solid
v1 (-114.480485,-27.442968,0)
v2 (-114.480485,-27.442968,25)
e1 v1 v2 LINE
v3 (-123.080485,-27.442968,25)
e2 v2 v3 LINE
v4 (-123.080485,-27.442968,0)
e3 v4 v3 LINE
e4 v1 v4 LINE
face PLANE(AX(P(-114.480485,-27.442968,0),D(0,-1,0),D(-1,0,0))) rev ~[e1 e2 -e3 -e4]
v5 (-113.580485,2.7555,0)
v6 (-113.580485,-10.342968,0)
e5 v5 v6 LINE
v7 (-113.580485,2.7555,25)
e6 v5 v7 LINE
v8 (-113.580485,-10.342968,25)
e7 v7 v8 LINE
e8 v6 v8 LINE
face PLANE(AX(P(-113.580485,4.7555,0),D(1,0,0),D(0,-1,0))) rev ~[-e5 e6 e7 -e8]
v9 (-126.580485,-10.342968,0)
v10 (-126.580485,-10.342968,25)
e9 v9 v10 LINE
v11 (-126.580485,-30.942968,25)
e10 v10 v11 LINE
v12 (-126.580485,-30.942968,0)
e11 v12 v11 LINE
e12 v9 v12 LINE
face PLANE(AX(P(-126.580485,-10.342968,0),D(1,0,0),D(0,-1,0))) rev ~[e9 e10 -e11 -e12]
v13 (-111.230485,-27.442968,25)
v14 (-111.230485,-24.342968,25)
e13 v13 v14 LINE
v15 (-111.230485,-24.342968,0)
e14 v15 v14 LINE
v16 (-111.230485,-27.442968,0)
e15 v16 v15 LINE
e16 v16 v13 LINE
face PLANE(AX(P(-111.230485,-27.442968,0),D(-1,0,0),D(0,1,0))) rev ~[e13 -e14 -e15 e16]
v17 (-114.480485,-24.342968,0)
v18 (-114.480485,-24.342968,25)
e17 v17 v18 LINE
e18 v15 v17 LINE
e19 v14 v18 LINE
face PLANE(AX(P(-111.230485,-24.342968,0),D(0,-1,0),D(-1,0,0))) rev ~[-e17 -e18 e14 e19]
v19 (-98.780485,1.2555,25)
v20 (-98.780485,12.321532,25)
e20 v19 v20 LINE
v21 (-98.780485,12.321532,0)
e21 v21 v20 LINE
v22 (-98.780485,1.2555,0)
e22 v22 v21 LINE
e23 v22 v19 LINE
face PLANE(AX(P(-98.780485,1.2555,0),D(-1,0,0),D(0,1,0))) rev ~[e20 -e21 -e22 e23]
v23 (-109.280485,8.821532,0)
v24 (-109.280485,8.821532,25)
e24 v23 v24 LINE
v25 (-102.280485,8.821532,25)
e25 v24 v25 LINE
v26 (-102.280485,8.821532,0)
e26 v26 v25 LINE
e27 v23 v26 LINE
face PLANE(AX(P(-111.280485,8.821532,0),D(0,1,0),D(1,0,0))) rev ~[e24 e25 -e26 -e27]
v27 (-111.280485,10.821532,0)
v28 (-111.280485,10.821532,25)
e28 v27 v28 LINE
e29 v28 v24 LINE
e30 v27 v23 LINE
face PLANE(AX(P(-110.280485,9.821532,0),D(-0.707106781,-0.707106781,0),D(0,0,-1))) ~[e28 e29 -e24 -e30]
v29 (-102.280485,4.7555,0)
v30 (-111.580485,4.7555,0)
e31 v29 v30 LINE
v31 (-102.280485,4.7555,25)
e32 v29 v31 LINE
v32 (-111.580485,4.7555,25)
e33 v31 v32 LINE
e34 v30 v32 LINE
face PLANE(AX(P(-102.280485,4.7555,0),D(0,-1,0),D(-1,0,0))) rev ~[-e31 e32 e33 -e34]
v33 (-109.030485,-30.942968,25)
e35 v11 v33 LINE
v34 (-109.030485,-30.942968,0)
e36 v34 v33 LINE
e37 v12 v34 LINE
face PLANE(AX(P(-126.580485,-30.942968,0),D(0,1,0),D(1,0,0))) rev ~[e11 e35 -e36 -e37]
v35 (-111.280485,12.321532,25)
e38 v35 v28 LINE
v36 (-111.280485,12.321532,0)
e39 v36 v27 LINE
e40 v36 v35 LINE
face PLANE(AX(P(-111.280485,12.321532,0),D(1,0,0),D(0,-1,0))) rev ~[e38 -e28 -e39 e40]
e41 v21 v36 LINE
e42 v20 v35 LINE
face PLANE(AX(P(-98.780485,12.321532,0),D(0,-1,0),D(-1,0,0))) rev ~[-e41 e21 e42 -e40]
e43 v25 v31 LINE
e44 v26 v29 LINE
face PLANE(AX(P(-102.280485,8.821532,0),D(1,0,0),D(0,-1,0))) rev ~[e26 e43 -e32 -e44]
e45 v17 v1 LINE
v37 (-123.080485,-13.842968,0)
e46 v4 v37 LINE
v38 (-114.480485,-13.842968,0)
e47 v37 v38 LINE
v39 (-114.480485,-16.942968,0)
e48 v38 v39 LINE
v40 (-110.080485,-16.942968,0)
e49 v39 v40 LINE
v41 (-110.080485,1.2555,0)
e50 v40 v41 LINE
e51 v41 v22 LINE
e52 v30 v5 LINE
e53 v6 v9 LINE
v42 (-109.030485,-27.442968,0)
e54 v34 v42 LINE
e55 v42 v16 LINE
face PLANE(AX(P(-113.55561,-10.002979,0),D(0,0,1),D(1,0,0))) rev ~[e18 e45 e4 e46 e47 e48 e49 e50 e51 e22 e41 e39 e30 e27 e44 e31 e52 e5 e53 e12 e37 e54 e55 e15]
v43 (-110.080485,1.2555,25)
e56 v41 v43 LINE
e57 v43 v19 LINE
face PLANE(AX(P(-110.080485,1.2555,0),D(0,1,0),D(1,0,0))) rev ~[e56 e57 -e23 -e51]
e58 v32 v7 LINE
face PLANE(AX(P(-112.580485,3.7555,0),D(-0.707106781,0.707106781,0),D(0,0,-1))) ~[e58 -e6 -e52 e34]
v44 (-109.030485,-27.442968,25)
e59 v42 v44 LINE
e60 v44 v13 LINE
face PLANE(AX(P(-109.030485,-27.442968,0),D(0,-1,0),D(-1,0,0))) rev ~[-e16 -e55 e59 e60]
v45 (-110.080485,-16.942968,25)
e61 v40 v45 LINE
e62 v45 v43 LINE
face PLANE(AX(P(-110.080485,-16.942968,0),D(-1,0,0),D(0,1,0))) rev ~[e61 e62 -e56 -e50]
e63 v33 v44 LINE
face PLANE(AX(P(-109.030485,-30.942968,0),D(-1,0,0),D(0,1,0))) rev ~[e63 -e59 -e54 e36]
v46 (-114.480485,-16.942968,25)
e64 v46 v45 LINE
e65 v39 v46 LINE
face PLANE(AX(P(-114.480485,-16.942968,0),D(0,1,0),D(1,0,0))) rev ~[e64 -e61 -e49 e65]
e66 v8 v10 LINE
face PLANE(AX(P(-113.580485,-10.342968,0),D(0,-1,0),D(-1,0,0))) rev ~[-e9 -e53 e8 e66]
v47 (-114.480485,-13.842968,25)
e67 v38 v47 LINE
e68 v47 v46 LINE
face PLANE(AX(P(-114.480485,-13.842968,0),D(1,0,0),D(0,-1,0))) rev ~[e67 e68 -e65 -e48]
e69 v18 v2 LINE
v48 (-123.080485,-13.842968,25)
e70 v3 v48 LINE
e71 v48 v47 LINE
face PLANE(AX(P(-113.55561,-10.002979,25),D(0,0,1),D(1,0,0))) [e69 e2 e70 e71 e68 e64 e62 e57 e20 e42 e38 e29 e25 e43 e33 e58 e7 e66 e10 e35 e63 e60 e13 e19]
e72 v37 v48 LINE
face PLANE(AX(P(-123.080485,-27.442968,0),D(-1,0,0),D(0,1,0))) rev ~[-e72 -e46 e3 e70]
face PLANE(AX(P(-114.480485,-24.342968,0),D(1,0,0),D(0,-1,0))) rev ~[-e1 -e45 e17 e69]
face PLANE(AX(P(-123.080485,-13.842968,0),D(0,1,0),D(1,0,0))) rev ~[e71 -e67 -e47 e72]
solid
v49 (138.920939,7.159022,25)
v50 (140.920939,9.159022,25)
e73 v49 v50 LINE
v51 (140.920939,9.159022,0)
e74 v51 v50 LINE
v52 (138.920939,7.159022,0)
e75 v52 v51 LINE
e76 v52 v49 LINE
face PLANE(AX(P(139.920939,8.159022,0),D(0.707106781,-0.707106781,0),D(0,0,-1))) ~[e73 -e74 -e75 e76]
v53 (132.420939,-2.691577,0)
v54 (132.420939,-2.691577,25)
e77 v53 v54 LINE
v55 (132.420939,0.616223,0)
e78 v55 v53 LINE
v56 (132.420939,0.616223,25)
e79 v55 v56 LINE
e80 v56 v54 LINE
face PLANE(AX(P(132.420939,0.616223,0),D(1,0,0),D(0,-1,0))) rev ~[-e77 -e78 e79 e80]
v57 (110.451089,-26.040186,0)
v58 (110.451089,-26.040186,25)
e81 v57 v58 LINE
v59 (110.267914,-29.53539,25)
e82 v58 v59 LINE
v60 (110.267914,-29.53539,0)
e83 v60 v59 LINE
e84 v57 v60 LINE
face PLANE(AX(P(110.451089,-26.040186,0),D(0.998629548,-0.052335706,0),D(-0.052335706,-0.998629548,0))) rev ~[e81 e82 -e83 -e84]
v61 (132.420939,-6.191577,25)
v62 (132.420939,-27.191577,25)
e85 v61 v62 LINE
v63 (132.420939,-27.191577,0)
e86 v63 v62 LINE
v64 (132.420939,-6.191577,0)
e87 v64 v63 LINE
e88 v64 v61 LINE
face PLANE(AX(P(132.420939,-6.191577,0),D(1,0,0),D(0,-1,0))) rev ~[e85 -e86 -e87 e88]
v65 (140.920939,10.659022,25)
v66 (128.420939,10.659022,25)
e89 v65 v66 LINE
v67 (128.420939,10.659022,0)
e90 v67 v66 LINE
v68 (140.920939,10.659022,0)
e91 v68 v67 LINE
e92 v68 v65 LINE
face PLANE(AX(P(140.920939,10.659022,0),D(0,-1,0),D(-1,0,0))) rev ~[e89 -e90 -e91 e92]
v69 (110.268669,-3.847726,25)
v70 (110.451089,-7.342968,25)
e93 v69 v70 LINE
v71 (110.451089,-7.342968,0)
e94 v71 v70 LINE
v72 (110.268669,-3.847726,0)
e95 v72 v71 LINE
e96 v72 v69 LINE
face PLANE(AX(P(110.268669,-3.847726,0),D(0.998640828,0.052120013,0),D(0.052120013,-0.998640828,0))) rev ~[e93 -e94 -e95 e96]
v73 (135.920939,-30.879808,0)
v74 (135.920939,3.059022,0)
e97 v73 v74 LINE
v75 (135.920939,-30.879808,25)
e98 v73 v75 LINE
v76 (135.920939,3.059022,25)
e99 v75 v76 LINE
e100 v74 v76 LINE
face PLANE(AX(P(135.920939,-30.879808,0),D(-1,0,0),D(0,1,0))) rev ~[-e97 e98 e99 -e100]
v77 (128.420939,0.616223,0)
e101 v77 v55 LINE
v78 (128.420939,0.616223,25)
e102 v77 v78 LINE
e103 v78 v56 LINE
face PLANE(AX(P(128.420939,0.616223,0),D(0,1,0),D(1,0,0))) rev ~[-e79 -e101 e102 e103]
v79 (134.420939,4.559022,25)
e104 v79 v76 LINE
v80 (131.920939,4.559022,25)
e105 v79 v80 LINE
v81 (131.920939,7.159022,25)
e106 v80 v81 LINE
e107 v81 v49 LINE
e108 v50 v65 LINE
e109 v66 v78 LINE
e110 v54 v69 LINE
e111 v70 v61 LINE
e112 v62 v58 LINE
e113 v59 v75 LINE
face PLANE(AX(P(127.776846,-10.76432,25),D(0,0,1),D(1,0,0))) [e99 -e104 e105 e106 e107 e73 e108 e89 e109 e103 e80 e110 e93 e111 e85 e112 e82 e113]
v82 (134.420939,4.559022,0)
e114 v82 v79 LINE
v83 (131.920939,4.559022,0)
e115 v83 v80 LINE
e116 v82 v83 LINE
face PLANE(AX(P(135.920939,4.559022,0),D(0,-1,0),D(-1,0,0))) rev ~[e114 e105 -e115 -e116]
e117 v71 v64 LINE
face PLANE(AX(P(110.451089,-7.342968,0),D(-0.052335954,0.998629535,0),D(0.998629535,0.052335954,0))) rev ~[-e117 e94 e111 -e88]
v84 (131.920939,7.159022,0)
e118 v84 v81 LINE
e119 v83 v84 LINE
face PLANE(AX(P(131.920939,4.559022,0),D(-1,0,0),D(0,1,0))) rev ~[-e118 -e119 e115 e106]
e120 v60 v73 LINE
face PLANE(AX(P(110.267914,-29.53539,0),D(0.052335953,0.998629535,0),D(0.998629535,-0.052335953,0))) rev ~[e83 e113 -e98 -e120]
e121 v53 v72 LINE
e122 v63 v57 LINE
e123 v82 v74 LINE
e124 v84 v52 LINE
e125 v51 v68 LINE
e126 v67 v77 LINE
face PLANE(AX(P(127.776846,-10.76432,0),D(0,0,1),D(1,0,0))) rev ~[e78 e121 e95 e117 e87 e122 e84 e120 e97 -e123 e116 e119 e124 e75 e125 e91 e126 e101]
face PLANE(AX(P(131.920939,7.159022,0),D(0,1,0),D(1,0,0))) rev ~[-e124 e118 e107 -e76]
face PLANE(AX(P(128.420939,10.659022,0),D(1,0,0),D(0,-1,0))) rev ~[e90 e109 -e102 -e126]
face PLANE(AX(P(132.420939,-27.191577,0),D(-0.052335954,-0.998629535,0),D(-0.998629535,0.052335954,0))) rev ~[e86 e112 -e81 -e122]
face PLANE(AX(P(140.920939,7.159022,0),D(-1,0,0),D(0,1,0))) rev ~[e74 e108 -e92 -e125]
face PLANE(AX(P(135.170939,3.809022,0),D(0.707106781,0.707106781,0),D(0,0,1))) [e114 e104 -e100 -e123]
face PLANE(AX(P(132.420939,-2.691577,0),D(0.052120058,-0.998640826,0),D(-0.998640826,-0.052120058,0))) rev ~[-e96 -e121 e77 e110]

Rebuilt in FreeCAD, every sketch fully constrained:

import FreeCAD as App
import Part
import Sketcher
from FreeCAD import Vector
Q = App.Units.Quantity


def edges_at(feature, points):
    """Names of the edges that pass closest to the given points."""
    edges = feature.Shape.Edges
    near = lambda p: min(range(len(edges)), key=lambda i: edges[i].distToShape(Part.Vertex(*p))[0])
    return sorted({f"Edge{near(p) + 1}" for p in points})


def add_polygon(sketch, points):
    """Adds a closed chain of lines whose ends are joined by coincident constraints."""
    first, n = sketch.GeometryCount, len(points)
    for a, b in zip(points, points[1:] + points[:1]):
        sketch.addGeometry(Part.LineSegment(App.Vector(*a, 0), App.Vector(*b, 0)), False)
    for i in range(n):
        sketch.addConstraint(Sketcher.Constraint("Coincident", first + i, 2, first + (i + 1) % n, 1))

doc = App.newDocument("Part")
body = doc.addObject("PartDesign::Body", "Body")
body.AllowCompound = True

# Sketch on XY plane
sketch1 = doc.addObject("Sketcher::SketchObject", "Sketch")
body.addObject(sketch1)
sketch1.AttachmentSupport = (doc.XY_Plane, [""])
sketch1.MapMode = "FlatFace"
add_polygon(sketch1, [(131.920939, 4.559022), (131.920939, 7.159022), (140.920939, 7.159022), (140.920939, 10.659022), (128.420939, 10.659022), (128.420939, 0.616223), (132.420939, 0.616223), (132.420939, -2.691577), (110.268669, -3.847726), (110.451089, -7.342968), (132.420939, -6.191577), (132.420939, -27.191577), (110.451089, -26.040186), (110.267914, -29.53539), (135.920939, -30.879808), (135.920939, 4.559022)])  # lines 0-15
add_polygon(sketch1, [(-114.480485, -16.942968), (-110.080485, -16.942968), (-110.080485, 1.2555), (-98.780485, 1.2555), (-98.780485, 12.321532), (-111.280485, 12.321532), (-111.280485, 8.821532), (-102.280485, 8.821532), (-102.280485, 4.7555), (-113.580485, 4.7555), (-113.580485, -10.342968), (-126.580485, -10.342968), (-126.580485, -30.942968), (-109.030485, -30.942968), (-109.030485, -27.442968), (-111.230485, -27.442968), (-111.230485, -24.342968), (-114.480485, -24.342968), (-114.480485, -27.442968), (-123.080485, -27.442968), (-123.080485, -13.842968), (-114.480485, -13.842968)])  # lines 16-37
sketch1.addConstraint(Sketcher.Constraint("Vertical", 0))
sketch1.addConstraint(Sketcher.Constraint("Horizontal", 1))
sketch1.addConstraint(Sketcher.Constraint("Vertical", 2))
sketch1.addConstraint(Sketcher.Constraint("Horizontal", 3))
sketch1.addConstraint(Sketcher.Constraint("Vertical", 4))
sketch1.addConstraint(Sketcher.Constraint("Horizontal", 5))
sketch1.addConstraint(Sketcher.Constraint("Vertical", 6))
sketch1.addConstraint(Sketcher.Constraint("Vertical", 10))
sketch1.addConstraint(Sketcher.Constraint("Vertical", 14))
sketch1.addConstraint(Sketcher.Constraint("Horizontal", 15))
sketch1.addConstraint(Sketcher.Constraint("Horizontal", 16))
sketch1.addConstraint(Sketcher.Constraint("Vertical", 17))
sketch1.addConstraint(Sketcher.Constraint("Horizontal", 18))
sketch1.addConstraint(Sketcher.Constraint("Vertical", 19))
sketch1.addConstraint(Sketcher.Constraint("Horizontal", 20))
sketch1.addConstraint(Sketcher.Constraint("Vertical", 21))
sketch1.addConstraint(Sketcher.Constraint("Horizontal", 22))
sketch1.addConstraint(Sketcher.Constraint("Vertical", 23))
sketch1.addConstraint(Sketcher.Constraint("Horizontal", 24))
sketch1.addConstraint(Sketcher.Constraint("Vertical", 25))
sketch1.addConstraint(Sketcher.Constraint("Horizontal", 26))
sketch1.addConstraint(Sketcher.Constraint("Vertical", 27))
sketch1.addConstraint(Sketcher.Constraint("Horizontal", 28))
sketch1.addConstraint(Sketcher.Constraint("Vertical", 29))
sketch1.addConstraint(Sketcher.Constraint("Horizontal", 30))
sketch1.addConstraint(Sketcher.Constraint("Vertical", 31))
sketch1.addConstraint(Sketcher.Constraint("Horizontal", 32))
sketch1.addConstraint(Sketcher.Constraint("Vertical", 33))
sketch1.addConstraint(Sketcher.Constraint("Horizontal", 34))
sketch1.addConstraint(Sketcher.Constraint("Vertical", 35))
sketch1.addConstraint(Sketcher.Constraint("Horizontal", 36))
sketch1.addConstraint(Sketcher.Constraint("Vertical", 37))
sketch1.addConstraint(Sketcher.Constraint("Perpendicular", 7, 8))
sketch1.addConstraint(Sketcher.Constraint("Perpendicular", 11, 12))
sketch1.addConstraint(Sketcher.Constraint("Perpendicular", 12, 13))
sketch1.addConstraint(Sketcher.Constraint("Horizontal", 30, 2, 33, 2))
sketch1.addConstraint(Sketcher.Constraint("Vertical", 6, 2, 9, 2))
sketch1.addConstraint(Sketcher.Constraint("Vertical", 8, 2, 11, 2))
sketch1.addConstraint(Sketcher.Constraint("Vertical", 33, 2, 36, 2))
sketch1.addConstraint(Sketcher.Constraint("Equal", 5, 15))
sketch1.addConstraint(Sketcher.Constraint("Equal", 3, 20))
sketch1.addConstraint(Sketcher.Constraint("Equal", 1, 22))
sketch1.addConstraint(Sketcher.Constraint("Equal", 18, 24))
sketch1.addConstraint(Sketcher.Constraint("Equal", 2, 21))
sketch1.addConstraint(Sketcher.Constraint("Equal", 21, 29))
sketch1.addConstraint(Sketcher.Constraint("Equal", 33, 37))
sketch1.addConstraint(Sketcher.Constraint("Equal", 9, 11))
sketch1.addConstraint(Sketcher.Constraint("Equal", 8, 12))
sketch1.addConstraint(Sketcher.Constraint("DistanceX", 1, 1, 1, 2, 9.0))
sketch1.addConstraint(Sketcher.Constraint("DistanceX", 5, 1, 5, 2, 4.0))
sketch1.addConstraint(Sketcher.Constraint("DistanceX", 26, 2, 26, 1, 13.0))
sketch1.addConstraint(Sketcher.Constraint("DistanceY", 10, 2, 10, 1, 21.0))
sketch1.addConstraint(Sketcher.Constraint("Angle", 9, Q("3 deg")))
sketch1.addConstraint(Sketcher.Constraint("Distance", 9, 22.0))
sketch1.addConstraint(Sketcher.Constraint("DistanceX", 3, 2, 3, 1, 12.5))
sketch1.addConstraint(Sketcher.Constraint("DistanceX", 16, 1, 16, 2, 4.4))
sketch1.addConstraint(Sketcher.Constraint("DistanceX", 18, 1, 18, 2, 11.3))
sketch1.addConstraint(Sketcher.Constraint("DistanceX", 30, 2, 30, 1, 2.2))
sketch1.addConstraint(Sketcher.Constraint("DistanceX", 34, 2, 34, 1, 8.6))
sketch1.addConstraint(Sketcher.Constraint("DistanceY", 0, 1, 0, 2, 2.6))
sketch1.addConstraint(Sketcher.Constraint("DistanceY", 2, 1, 2, 2, 3.5))
sketch1.addConstraint(Sketcher.Constraint("DistanceY", 27, 2, 27, 1, 20.6))
sketch1.addConstraint(Sketcher.Constraint("DistanceY", 31, 1, 31, 2, 3.1))
sketch1.addConstraint(Sketcher.Constraint("DistanceY", 35, 1, 35, 2, 13.6))
sketch1.addConstraint(Sketcher.Constraint("Distance", 8, 3.499999))
sketch1.addConstraint(Sketcher.Constraint("DistanceX", 28, 1, 28, 2, 17.55))
sketch1.addConstraint(Sketcher.Constraint("DistanceY", 9, 2, 6, 2, 3.5))
sketch1.addConstraint(Sketcher.Constraint("DistanceY", 16, 2, 8, 2, 9.6))
sketch1.addConstraint(Sketcher.Constraint("DistanceY", 18, 2, 23, 2, 3.5))
sketch1.addConstraint(Sketcher.Constraint("DistanceY", 4, 2, 4, 1, 10.042799))
sketch1.addConstraint(Sketcher.Constraint("DistanceY", 6, 2, 6, 1, 3.3078))
sketch1.addConstraint(Sketcher.Constraint("DistanceY", 17, 1, 17, 2, 18.198468))
sketch1.addConstraint(Sketcher.Constraint("DistanceY", -1, 1, 17, 2, 1.2555))
sketch1.addConstraint(Sketcher.Constraint("DistanceX", 16, 2, 12, 2, 220.348399))
sketch1.addConstraint(Sketcher.Constraint("DistanceY", 16, 2, 19, 2, 29.2645))
sketch1.addConstraint(Sketcher.Constraint("DistanceX", -1, 1, 0, 2, 131.920939))
pad1 = doc.addObject("PartDesign::Pad", "Pad")
body.addObject(pad1)
pad1.Profile = sketch1
pad1.Length = 25
doc.recompute()

chamfer = doc.addObject("PartDesign::Chamfer", "Chamfer")
body.addObject(chamfer)
chamfer.Base = (pad1, edges_at(pad1, [(140.921, 7.159, 12.5), (-111.28, 8.822, 12.5), (-113.58, 4.755, 12.5)]))
chamfer.Size = 2
doc.recompute()

chamfer2 = doc.addObject("PartDesign::Chamfer", "Chamfer001")
body.addObject(chamfer2)
chamfer2.Base = (chamfer, edges_at(chamfer, [(135.921, 4.559, 12.5)]))
chamfer2.Size = 1.5

doc.recompute()
